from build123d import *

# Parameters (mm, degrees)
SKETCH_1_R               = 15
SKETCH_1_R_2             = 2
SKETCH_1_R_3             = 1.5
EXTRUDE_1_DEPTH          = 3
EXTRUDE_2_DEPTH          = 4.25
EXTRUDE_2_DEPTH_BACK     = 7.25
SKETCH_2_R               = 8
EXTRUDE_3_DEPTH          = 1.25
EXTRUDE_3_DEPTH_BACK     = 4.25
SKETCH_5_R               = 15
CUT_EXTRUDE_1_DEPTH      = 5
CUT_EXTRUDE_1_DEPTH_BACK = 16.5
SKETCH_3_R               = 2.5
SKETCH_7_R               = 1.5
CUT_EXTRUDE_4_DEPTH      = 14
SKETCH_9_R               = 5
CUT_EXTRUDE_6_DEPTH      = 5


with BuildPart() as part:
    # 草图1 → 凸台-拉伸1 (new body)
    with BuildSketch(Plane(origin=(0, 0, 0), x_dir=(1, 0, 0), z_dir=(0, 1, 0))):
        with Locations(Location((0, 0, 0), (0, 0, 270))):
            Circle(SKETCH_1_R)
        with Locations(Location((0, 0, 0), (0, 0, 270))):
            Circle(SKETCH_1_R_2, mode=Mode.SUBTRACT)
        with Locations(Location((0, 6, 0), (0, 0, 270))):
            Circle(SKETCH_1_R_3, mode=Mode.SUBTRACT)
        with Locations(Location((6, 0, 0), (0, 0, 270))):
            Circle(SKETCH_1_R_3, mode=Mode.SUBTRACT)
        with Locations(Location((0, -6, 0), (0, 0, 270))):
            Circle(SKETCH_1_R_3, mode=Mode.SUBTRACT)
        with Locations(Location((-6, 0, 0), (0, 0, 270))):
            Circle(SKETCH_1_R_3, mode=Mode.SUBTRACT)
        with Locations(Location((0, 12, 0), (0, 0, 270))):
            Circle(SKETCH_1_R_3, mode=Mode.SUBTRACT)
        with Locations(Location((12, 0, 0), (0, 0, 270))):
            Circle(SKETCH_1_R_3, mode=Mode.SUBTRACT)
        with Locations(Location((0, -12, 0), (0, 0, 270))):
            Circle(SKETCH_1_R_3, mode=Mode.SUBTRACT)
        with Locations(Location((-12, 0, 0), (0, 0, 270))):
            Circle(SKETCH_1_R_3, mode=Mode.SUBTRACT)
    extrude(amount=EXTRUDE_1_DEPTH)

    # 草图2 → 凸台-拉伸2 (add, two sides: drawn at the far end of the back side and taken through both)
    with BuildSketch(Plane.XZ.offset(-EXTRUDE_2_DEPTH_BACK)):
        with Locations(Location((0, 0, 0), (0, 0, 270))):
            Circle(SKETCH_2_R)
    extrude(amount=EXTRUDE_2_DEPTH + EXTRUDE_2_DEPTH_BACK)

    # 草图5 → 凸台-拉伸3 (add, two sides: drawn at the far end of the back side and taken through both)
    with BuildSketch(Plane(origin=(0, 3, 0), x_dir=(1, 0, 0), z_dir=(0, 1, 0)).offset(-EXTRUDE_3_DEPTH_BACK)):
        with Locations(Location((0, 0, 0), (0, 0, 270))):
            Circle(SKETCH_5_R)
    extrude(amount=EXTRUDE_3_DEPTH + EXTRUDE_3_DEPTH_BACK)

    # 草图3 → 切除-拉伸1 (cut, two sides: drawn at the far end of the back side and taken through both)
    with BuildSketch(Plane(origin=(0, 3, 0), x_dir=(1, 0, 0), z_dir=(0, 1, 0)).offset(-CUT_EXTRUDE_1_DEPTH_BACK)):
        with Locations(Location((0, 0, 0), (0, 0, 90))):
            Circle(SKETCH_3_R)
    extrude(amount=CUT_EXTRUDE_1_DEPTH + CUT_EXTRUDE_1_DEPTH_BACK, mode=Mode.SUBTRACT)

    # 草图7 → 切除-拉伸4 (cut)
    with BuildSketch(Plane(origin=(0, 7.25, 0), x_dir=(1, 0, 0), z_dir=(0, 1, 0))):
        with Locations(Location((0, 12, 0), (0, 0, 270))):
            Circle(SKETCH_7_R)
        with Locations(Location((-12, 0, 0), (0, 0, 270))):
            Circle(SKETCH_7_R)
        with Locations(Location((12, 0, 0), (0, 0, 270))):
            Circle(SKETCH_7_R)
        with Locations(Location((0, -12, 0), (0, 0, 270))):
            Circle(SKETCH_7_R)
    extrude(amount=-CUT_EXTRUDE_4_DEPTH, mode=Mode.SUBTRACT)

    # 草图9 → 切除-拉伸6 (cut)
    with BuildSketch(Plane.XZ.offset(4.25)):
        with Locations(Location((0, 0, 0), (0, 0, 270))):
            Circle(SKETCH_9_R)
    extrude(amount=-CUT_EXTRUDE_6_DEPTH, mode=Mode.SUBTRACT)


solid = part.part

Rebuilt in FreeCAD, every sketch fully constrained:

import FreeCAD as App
import Part
import Sketcher

V = App.Vector
Q = App.Units.Quantity

doc = App.newDocument("Part")
params = doc.addObject("Spreadsheet::Sheet", "Params")
for row, (alias, value) in enumerate([
    ("sketch1_diameter", "30 mm"),
    ("sketch1_diameter2", "3 mm"),
    ("sketch1_diameter3", "4 mm"),
    ("pad1_length", "3 mm"),
    ("sketch2_diameter", "16 mm"),
    ("pad2_length", "4.25 mm"),
    ("pad2_length2", "7.25 mm"),
    ("sketch3_diameter", "30 mm"),
    ("pad3_length", "1.25 mm"),
    ("pad3_length2", "4.25 mm"),
    ("sketch4_diameter", "5 mm"),
    ("sketch5_diameter", "3 mm"),
    ("pocket2_length", "14 mm"),
    ("sketch6_diameter", "10 mm"),
    ("pocket3_length", "5 mm"),
], start=1):
    params.set(f"A{row}", alias)
    params.set(f"B{row}", "=" + value)
    params.setAlias(f"B{row}", alias)

body = doc.addObject("PartDesign::Body", "Body")

sketch1 = body.newObject("Sketcher::SketchObject", "Sketch")
sketch1.AttachmentSupport = (doc.getObject("XZ_Plane"), [""])
sketch1.MapMode = "FlatFace"
sketch1.addGeometry([
    Part.Circle(V(0, 0, 0), V(0, 0, 1), 15),
    Part.Circle(V(0, -12, 0), V(0, 0, 1), 1.5),
    Part.Circle(V(0, -6, 0), V(0, 0, 1), 1.5),
    Part.Circle(V(-12, 0, 0), V(0, 0, 1), 1.5),
    Part.Circle(V(-6, 0, 0), V(0, 0, 1), 1.5),
    Part.Circle(V(12, 0, 0), V(0, 0, 1), 1.5),
    Part.Circle(V(0, 0, 0), V(0, 0, 1), 2),
    Part.Circle(V(0, 6, 0), V(0, 0, 1), 1.5),
    Part.Circle(V(6, 0, 0), V(0, 0, 1), 1.5),
    Part.Circle(V(0, 12, 0), V(0, 0, 1), 1.5),
], False)
sketch1.addConstraint([
    Sketcher.Constraint("Coincident", 0, 3, -1, 1),
    Sketcher.Constraint("Coincident", 6, 3, -1, 1),
    Sketcher.Constraint("Equal", 1, 2),
    Sketcher.Constraint("Equal", 2, 3),
    Sketcher.Constraint("Equal", 3, 4),
    Sketcher.Constraint("Equal", 4, 5),
    Sketcher.Constraint("Equal", 5, 7),
    Sketcher.Constraint("Equal", 7, 8),
    Sketcher.Constraint("Equal", 8, 9),
    Sketcher.Constraint("Symmetric", 3, 3, 5, 3, -1, 1),
    Sketcher.Constraint("Symmetric", 2, 3, 7, 3, -1, 1),
    Sketcher.Constraint("Symmetric", 4, 3, 8, 3, -1, 1),
    Sketcher.Constraint("Symmetric", 1, 3, 9, 3, -1, 1),
    Sketcher.Constraint("PointOnObject", 1, 3, -2),
    Sketcher.Constraint("PointOnObject", 2, 3, -2),
    Sketcher.Constraint("PointOnObject", 3, 3, -1),
    Sketcher.Constraint("PointOnObject", 4, 3, -1),
    Sketcher.Constraint("Diameter", 0, Q("30 mm")),
    Sketcher.Constraint("Diameter", 1, Q("3 mm")),
    Sketcher.Constraint("Diameter", 6, Q("4 mm")),
    Sketcher.Constraint("DistanceY", 1, 3, -1, 1, Q("12 mm")),
    Sketcher.Constraint("DistanceY", 2, 3, -1, 1, Q("6 mm")),
    Sketcher.Constraint("DistanceX", 3, 3, -1, 1, Q("12 mm")),
    Sketcher.Constraint("DistanceX", 4, 3, -1, 1, Q("6 mm")),
])
sketch1.setExpression("Constraints[17]", "Params.sketch1_diameter")
sketch1.setExpression("Constraints[18]", "Params.sketch1_diameter2")
sketch1.setExpression("Constraints[19]", "Params.sketch1_diameter3")
pad1 = body.newObject("PartDesign::Pad", "Pad")
pad1.Profile = sketch1
pad1.setExpression("Length", "Params.pad1_length")
pad1.Reversed = True

sketch2 = body.newObject("Sketcher::SketchObject", "Sketch001")
sketch2.AttachmentSupport = (doc.getObject("XZ_Plane"), [""])
sketch2.MapMode = "FlatFace"
sketch2.addGeometry(Part.Circle(V(0, 0, 0), V(0, 0, 1), 8), False)
sketch2.addConstraint([
    Sketcher.Constraint("Coincident", 0, 3, -1, 1),
    Sketcher.Constraint("Diameter", 0, Q("16 mm")),
])
sketch2.setExpression("Constraints[1]", "Params.sketch2_diameter")
pad2 = body.newObject("PartDesign::Pad", "Pad001")
pad2.Profile = sketch2
pad2.Type = "TwoLengths"
pad2.setExpression("Length", "Params.pad2_length")
pad2.setExpression("Length2", "Params.pad2_length2")

sketch3 = body.newObject("Sketcher::SketchObject", "Sketch002")
sketch3.AttachmentSupport = (doc.getObject("XZ_Plane"), [""])
sketch3.MapMode = "FlatFace"
sketch3.AttachmentOffset = App.Placement(V(0, 0, -3), App.Rotation())
sketch3.addGeometry(Part.Circle(V(0, 0, 0), V(0, 0, 1), 15), False)
sketch3.addConstraint([
    Sketcher.Constraint("Coincident", 0, 3, -1, 1),
    Sketcher.Constraint("Diameter", 0, Q("30 mm")),
])
sketch3.setExpression("Constraints[1]", "Params.sketch3_diameter")
pad3 = body.newObject("PartDesign::Pad", "Pad002")
pad3.Profile = sketch3
pad3.Type = "TwoLengths"
pad3.setExpression("Length", "Params.pad3_length")
pad3.setExpression("Length2", "Params.pad3_length2")
pad3.Reversed = True

sketch4 = body.newObject("Sketcher::SketchObject", "Sketch003")
sketch4.AttachmentSupport = (doc.getObject("XZ_Plane"), [""])
sketch4.MapMode = "FlatFace"
sketch4.AttachmentOffset = App.Placement(V(0, 0, -3), App.Rotation())
sketch4.addGeometry(Part.Circle(V(0, 0, 0), V(0, 0, 1), 2.5), False)
sketch4.addConstraint([
    Sketcher.Constraint("Coincident", 0, 3, -1, 1),
    Sketcher.Constraint("Diameter", 0, Q("5 mm")),
])
sketch4.setExpression("Constraints[1]", "Params.sketch4_diameter")
pocket1 = body.newObject("PartDesign::Pocket", "Pocket")
pocket1.Profile = sketch4
pocket1.Type = "ThroughAll"
pocket1.Midplane = True

sketch5 = body.newObject("Sketcher::SketchObject", "Sketch004")
sketch5.AttachmentSupport = (doc.getObject("XZ_Plane"), [""])
sketch5.MapMode = "FlatFace"
sketch5.AttachmentOffset = App.Placement(V(0, 0, -7.25), App.Rotation())
sketch5.addGeometry([
    Part.Circle(V(0, -12, 0), V(0, 0, 1), 1.5),
    Part.Circle(V(-12, 0, 0), V(0, 0, 1), 1.5),
    Part.Circle(V(12, 0, 0), V(0, 0, 1), 1.5),
    Part.Circle(V(0, 12, 0), V(0, 0, 1), 1.5),
], False)
sketch5.addConstraint([
    Sketcher.Constraint("Equal", 0, 1),
    Sketcher.Constraint("Equal", 1, 2),
    Sketcher.Constraint("Equal", 2, 3),
    Sketcher.Constraint("Symmetric", 1, 3, 2, 3, -1, 1),
    Sketcher.Constraint("Symmetric", 0, 3, 3, 3, -1, 1),
    Sketcher.Constraint("PointOnObject", 0, 3, -2),
    Sketcher.Constraint("PointOnObject", 1, 3, -1),
    Sketcher.Constraint("Diameter", 0, Q("3 mm")),
    Sketcher.Constraint("DistanceY", 0, 3, -1, 1, Q("12 mm")),
    Sketcher.Constraint("DistanceX", 1, 3, -1, 1, Q("12 mm")),
])
sketch5.setExpression("Constraints[7]", "Params.sketch5_diameter")
pocket2 = body.newObject("PartDesign::Pocket", "Pocket001")
pocket2.Profile = sketch5
pocket2.setExpression("Length", "Params.pocket2_length")
pocket2.Reversed = True

sketch6 = body.newObject("Sketcher::SketchObject", "Sketch005")
sketch6.AttachmentSupport = (doc.getObject("XZ_Plane"), [""])
sketch6.MapMode = "FlatFace"
sketch6.AttachmentOffset = App.Placement(V(0, 0, 4.25), App.Rotation())
sketch6.addGeometry(Part.Circle(V(0, 0, 0), V(0, 0, 1), 5), False)
sketch6.addConstraint([
    Sketcher.Constraint("Coincident", 0, 3, -1, 1),
    Sketcher.Constraint("Diameter", 0, Q("10 mm")),
])
sketch6.setExpression("Constraints[1]", "Params.sketch6_diameter")
pocket3 = body.newObject("PartDesign::Pocket", "Pocket002")
pocket3.Profile = sketch6
pocket3.setExpression("Length", "Params.pocket3_length")

doc.recompute()
